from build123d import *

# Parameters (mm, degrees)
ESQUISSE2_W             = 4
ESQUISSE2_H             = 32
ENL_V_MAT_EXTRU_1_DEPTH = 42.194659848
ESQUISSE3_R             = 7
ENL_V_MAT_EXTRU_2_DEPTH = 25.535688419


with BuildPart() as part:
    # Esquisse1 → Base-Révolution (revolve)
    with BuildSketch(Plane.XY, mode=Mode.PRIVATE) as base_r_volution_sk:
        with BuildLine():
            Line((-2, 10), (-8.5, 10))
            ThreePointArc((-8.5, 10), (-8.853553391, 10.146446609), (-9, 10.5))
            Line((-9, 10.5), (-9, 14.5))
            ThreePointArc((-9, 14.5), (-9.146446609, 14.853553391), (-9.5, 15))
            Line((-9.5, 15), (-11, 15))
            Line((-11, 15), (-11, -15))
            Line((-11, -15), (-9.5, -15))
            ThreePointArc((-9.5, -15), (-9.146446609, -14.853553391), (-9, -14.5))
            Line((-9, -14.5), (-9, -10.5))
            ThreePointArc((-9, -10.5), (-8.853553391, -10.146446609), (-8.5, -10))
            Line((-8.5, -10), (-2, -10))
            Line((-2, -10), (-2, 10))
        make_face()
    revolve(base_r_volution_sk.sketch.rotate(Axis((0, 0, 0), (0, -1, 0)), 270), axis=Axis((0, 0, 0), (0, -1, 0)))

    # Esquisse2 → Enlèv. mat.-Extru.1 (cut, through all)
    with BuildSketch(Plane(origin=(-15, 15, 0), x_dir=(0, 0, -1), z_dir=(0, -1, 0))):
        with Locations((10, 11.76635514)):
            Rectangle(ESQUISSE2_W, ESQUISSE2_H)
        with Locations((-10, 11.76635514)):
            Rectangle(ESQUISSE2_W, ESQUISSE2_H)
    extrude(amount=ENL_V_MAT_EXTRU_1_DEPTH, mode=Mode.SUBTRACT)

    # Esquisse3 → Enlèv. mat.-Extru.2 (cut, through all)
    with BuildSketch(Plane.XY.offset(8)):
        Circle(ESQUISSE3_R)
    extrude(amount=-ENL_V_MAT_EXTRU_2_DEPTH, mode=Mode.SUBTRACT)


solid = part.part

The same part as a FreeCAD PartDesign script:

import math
import FreeCAD as App
import Part
import Sketcher

doc = App.newDocument("Part")
body = doc.addObject("PartDesign::Body", "Body")

sketch1 = doc.addObject("Sketcher::SketchObject", "Sketch")
body.addObject(sketch1)
sketch1.AttachmentSupport = (doc.XY_Plane, [""])
sketch1.MapMode = "FlatFace"
sketch1.addGeometry(Part.LineSegment(App.Vector(-2, 10, 0), App.Vector(-8.5, 10, 0)), False)
sketch1.addGeometry(Part.ArcOfCircle(Part.Circle(App.Vector(-8.5, 10.5, 0), App.Vector(0, 0, 1), 0.5), math.radians(180), math.radians(270)), False)
sketch1.addGeometry(Part.LineSegment(App.Vector(-9, 10.5, 0), App.Vector(-9, 14.5, 0)), False)
sketch1.addGeometry(Part.ArcOfCircle(Part.Circle(App.Vector(-9.5, 14.5, 0), App.Vector(0, 0, 1), 0.5), math.radians(0), math.radians(90)), False)
sketch1.addGeometry(Part.LineSegment(App.Vector(-9.5, 15, 0), App.Vector(-11, 15, 0)), False)
sketch1.addGeometry(Part.LineSegment(App.Vector(-11, 15, 0), App.Vector(-11, -15, 0)), False)
sketch1.addGeometry(Part.LineSegment(App.Vector(-11, -15, 0), App.Vector(-9.5, -15, 0)), False)
sketch1.addGeometry(Part.ArcOfCircle(Part.Circle(App.Vector(-9.5, -14.5, 0), App.Vector(0, 0, 1), 0.5), math.radians(-90), math.radians(0)), False)
sketch1.addGeometry(Part.LineSegment(App.Vector(-9, -14.5, 0), App.Vector(-9, -10.5, 0)), False)
sketch1.addGeometry(Part.ArcOfCircle(Part.Circle(App.Vector(-8.5, -10.5, 0), App.Vector(0, 0, 1), 0.5), math.radians(90), math.radians(180)), False)
sketch1.addGeometry(Part.LineSegment(App.Vector(-8.5, -10, 0), App.Vector(-2, -10, 0)), False)
sketch1.addGeometry(Part.LineSegment(App.Vector(-2, -10, 0), App.Vector(-2, 10, 0)), False)
sketch1.addConstraint(Sketcher.Constraint("Tangent", 0, 2, 1, 2))
sketch1.addConstraint(Sketcher.Constraint("Tangent", 1, 1, 2, 1))
sketch1.addConstraint(Sketcher.Constraint("Tangent", 2, 2, 3, 1))
sketch1.addConstraint(Sketcher.Constraint("Tangent", 3, 2, 4, 1))
sketch1.addConstraint(Sketcher.Constraint("Coincident", 4, 2, 5, 1))
sketch1.addConstraint(Sketcher.Constraint("Coincident", 5, 2, 6, 1))
sketch1.addConstraint(Sketcher.Constraint("Tangent", 6, 2, 7, 1))
sketch1.addConstraint(Sketcher.Constraint("Tangent", 7, 2, 8, 1))
sketch1.addConstraint(Sketcher.Constraint("Tangent", 8, 2, 9, 2))
sketch1.addConstraint(Sketcher.Constraint("Tangent", 9, 1, 10, 1))
sketch1.addConstraint(Sketcher.Constraint("Coincident", 10, 2, 11, 1))
sketch1.addConstraint(Sketcher.Constraint("Coincident", 11, 2, 0, 1))
sketch1.addConstraint(Sketcher.Constraint("Horizontal", 0))
sketch1.addConstraint(Sketcher.Constraint("Vertical", 2))
sketch1.addConstraint(Sketcher.Constraint("Horizontal", 4))
sketch1.addConstraint(Sketcher.Constraint("Vertical", 5))
sketch1.addConstraint(Sketcher.Constraint("Horizontal", 6))
sketch1.addConstraint(Sketcher.Constraint("Vertical", 8))
sketch1.addConstraint(Sketcher.Constraint("Horizontal", 10))
sketch1.addConstraint(Sketcher.Constraint("Vertical", 11))
sketch1.addConstraint(Sketcher.Constraint("Equal", 1, 3))
sketch1.addConstraint(Sketcher.Constraint("Equal", 3, 7))
sketch1.addConstraint(Sketcher.Constraint("Equal", 7, 9))
sketch1.addConstraint(Sketcher.Constraint("Symmetric", 3, 3, 7, 3, -1))
sketch1.addConstraint(Sketcher.Constraint("Equal", 2, 8))
sketch1.addConstraint(Sketcher.Constraint("Radius", 1, 0.5))
sketch1.addConstraint(Sketcher.Constraint("DistanceY", 2, 1, 2, 2, 4.0))
sketch1.addConstraint(Sketcher.Constraint("DistanceY", 5, 2, 5, 1, 30.0))
sketch1.addConstraint(Sketcher.Constraint("DistanceX", 0, 2, 0, 1, 6.5))
sketch1.addConstraint(Sketcher.Constraint("DistanceX", 4, 2, 4, 1, 1.5))
sketch1.addConstraint(Sketcher.Constraint("DistanceX", 1, 1, -1, 1, 9.0))
revolution = doc.addObject("PartDesign::Revolution", "Revolution")
body.addObject(revolution)
revolution.Profile = sketch1
revolution.ReferenceAxis = (sketch1, ["V_Axis"])
revolution.Angle = 360

sketch2 = doc.addObject("Sketcher::SketchObject", "Sketch001")
body.addObject(sketch2)
sketch2.AttachmentSupport = (doc.XZ_Plane, [""])
sketch2.MapMode = "FlatFace"
sketch2.AttachmentOffset = App.Placement(App.Vector(0, 0, -15), App.Rotation())
sketch2.addGeometry(Part.LineSegment(App.Vector(12.8, -8, 0), App.Vector(-19.2, -8, 0)), False)
sketch2.addGeometry(Part.LineSegment(App.Vector(-19.2, -8, 0), App.Vector(-19.2, -12, 0)), False)
sketch2.addGeometry(Part.LineSegment(App.Vector(-19.2, -12, 0), App.Vector(12.8, -12, 0)), False)
sketch2.addGeometry(Part.LineSegment(App.Vector(12.8, -12, 0), App.Vector(12.8, -8, 0)), False)
sketch2.addGeometry(Part.LineSegment(App.Vector(12.8, 12, 0), App.Vector(-19.2, 12, 0)), False)
sketch2.addGeometry(Part.LineSegment(App.Vector(-19.2, 12, 0), App.Vector(-19.2, 8, 0)), False)
sketch2.addGeometry(Part.LineSegment(App.Vector(-19.2, 8, 0), App.Vector(12.8, 8, 0)), False)
sketch2.addGeometry(Part.LineSegment(App.Vector(12.8, 8, 0), App.Vector(12.8, 12, 0)), False)
sketch2.addConstraint(Sketcher.Constraint("Coincident", 0, 2, 1, 1))
sketch2.addConstraint(Sketcher.Constraint("Coincident", 1, 2, 2, 1))
sketch2.addConstraint(Sketcher.Constraint("Coincident", 2, 2, 3, 1))
sketch2.addConstraint(Sketcher.Constraint("Coincident", 3, 2, 0, 1))
sketch2.addConstraint(Sketcher.Constraint("Coincident", 4, 2, 5, 1))
sketch2.addConstraint(Sketcher.Constraint("Coincident", 5, 2, 6, 1))
sketch2.addConstraint(Sketcher.Constraint("Coincident", 6, 2, 7, 1))
sketch2.addConstraint(Sketcher.Constraint("Coincident", 7, 2, 4, 1))
sketch2.addConstraint(Sketcher.Constraint("Horizontal", 0))
sketch2.addConstraint(Sketcher.Constraint("Vertical", 1))
sketch2.addConstraint(Sketcher.Constraint("Horizontal", 2))
sketch2.addConstraint(Sketcher.Constraint("Vertical", 3))
sketch2.addConstraint(Sketcher.Constraint("Horizontal", 4))
sketch2.addConstraint(Sketcher.Constraint("Vertical", 5))
sketch2.addConstraint(Sketcher.Constraint("Horizontal", 6))
sketch2.addConstraint(Sketcher.Constraint("Vertical", 7))
sketch2.addConstraint(Sketcher.Constraint("Symmetric", 1, 2, 4, 2, -1))
sketch2.addConstraint(Sketcher.Constraint("Symmetric", 3, 2, 6, 2, -1))
sketch2.addConstraint(Sketcher.Constraint("DistanceX", 0, 2, 0, 1, 32.0))
sketch2.addConstraint(Sketcher.Constraint("DistanceY", 1, 2, 1, 1, 4.0))
sketch2.addConstraint(Sketcher.Constraint("DistanceY", 0, 2, -1, 1, 8.0))
sketch2.addConstraint(Sketcher.Constraint("DistanceX", 0, 2, -1, 1, 19.233645))
pocket1 = doc.addObject("PartDesign::Pocket", "Pocket")
body.addObject(pocket1)
pocket1.Profile = sketch2
pocket1.Type = "ThroughAll"
pocket1.Reversed = True

sketch3 = doc.addObject("Sketcher::SketchObject", "Sketch002")
body.addObject(sketch3)
sketch3.AttachmentSupport = (doc.XY_Plane, [""])
sketch3.MapMode = "FlatFace"
sketch3.AttachmentOffset = App.Placement(App.Vector(0, 0, 8), App.Rotation())
sketch3.addGeometry(Part.Circle(App.Vector(0, 0, 0), App.Vector(0, 0, 1), 7), False)
sketch3.addConstraint(Sketcher.Constraint("Coincident", 0, 3, -1, 1))
sketch3.addConstraint(Sketcher.Constraint("Diameter", 0, 14.0))
pocket2 = doc.addObject("PartDesign::Pocket", "Pocket001")
body.addObject(pocket2)
pocket2.Profile = sketch3
pocket2.Type = "ThroughAll"

doc.recompute()
